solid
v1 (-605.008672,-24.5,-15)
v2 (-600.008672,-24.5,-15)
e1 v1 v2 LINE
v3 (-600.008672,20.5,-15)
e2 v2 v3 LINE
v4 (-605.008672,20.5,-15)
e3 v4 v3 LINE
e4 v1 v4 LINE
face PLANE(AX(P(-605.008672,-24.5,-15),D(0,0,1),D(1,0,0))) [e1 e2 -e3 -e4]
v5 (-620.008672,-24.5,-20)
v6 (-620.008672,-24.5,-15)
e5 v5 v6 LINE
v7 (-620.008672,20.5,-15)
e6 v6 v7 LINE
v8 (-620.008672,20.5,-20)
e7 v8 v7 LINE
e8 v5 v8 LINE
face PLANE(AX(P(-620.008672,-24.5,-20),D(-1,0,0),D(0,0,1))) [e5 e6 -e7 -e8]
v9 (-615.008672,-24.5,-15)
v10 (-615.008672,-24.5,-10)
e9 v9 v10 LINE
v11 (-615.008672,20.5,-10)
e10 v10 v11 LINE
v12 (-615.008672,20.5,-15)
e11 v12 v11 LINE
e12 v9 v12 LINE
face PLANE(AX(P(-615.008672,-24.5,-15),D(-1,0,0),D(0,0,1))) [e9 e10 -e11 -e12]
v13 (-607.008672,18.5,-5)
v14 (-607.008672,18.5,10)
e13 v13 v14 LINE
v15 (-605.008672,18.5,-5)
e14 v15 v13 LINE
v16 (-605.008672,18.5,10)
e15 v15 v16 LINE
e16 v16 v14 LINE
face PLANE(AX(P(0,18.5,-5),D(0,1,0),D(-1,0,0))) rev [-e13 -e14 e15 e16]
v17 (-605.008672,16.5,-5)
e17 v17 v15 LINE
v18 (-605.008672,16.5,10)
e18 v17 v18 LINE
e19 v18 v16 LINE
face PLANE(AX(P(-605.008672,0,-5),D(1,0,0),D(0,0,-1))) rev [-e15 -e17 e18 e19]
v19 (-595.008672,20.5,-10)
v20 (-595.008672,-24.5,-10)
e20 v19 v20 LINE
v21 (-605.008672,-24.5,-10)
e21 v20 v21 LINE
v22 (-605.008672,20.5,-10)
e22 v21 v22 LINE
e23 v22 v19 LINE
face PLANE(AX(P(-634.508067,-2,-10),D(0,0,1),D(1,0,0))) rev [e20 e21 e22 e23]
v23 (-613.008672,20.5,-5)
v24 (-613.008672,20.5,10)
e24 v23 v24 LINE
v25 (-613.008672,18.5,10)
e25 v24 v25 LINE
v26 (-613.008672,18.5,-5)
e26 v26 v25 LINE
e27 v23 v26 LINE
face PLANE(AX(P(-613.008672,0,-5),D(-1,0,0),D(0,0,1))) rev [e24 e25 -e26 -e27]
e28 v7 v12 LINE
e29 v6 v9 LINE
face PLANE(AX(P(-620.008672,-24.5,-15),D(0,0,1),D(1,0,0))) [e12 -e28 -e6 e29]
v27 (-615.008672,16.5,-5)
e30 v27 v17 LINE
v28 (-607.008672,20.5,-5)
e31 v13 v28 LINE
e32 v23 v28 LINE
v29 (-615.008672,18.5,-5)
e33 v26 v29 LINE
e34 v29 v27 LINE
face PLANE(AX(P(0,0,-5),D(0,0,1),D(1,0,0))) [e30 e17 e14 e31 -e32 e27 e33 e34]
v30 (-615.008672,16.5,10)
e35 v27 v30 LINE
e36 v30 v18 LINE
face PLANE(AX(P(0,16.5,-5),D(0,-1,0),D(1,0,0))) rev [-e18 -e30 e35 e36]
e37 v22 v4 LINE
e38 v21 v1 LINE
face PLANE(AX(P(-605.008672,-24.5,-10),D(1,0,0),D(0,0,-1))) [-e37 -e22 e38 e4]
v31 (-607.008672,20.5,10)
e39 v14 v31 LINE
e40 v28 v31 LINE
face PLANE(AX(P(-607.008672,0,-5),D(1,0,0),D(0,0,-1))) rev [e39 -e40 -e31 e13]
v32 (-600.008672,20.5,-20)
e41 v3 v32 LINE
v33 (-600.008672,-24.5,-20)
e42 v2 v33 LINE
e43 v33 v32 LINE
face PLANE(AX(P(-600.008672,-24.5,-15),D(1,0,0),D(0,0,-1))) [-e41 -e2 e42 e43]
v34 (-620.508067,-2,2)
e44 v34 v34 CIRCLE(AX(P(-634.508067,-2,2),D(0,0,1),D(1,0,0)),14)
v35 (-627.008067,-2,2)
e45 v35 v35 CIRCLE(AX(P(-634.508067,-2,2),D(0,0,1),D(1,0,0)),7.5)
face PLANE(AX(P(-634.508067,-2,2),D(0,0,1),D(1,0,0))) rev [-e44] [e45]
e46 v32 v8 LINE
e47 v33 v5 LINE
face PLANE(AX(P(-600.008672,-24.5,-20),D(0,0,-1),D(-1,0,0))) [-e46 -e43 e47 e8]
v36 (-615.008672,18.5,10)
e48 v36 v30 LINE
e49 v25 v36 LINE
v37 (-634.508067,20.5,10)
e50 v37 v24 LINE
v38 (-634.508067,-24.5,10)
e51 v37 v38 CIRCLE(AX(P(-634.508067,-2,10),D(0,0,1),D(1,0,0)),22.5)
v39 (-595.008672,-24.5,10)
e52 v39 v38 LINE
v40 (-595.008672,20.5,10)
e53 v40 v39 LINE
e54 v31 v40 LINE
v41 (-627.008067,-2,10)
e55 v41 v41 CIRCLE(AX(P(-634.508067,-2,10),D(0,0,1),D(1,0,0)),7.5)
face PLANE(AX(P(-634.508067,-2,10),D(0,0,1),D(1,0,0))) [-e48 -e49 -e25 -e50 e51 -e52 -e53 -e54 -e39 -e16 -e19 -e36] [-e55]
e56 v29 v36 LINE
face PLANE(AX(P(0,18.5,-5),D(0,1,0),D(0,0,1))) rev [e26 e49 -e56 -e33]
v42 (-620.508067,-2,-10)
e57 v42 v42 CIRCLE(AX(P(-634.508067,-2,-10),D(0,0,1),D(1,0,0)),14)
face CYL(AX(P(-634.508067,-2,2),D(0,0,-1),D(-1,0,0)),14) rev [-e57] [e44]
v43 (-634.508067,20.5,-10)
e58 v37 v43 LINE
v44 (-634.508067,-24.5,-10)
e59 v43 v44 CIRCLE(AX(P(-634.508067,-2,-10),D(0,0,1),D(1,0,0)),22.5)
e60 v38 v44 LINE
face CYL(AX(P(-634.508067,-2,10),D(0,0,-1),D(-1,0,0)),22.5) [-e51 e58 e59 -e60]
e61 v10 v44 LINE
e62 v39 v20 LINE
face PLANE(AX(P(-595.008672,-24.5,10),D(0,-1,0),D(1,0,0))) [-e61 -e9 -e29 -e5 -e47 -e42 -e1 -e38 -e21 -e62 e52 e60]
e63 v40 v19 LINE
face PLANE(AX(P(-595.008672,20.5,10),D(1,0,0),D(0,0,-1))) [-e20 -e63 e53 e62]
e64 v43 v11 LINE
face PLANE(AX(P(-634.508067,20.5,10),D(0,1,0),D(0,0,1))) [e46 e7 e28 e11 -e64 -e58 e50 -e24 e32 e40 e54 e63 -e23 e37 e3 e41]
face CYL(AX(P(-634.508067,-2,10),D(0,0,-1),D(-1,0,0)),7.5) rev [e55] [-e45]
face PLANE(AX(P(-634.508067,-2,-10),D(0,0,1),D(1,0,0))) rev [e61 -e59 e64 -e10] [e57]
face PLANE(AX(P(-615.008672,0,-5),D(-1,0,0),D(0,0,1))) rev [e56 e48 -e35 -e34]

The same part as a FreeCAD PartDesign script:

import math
import FreeCAD as App
import Part
import Sketcher
from FreeCAD import Vector
Q = App.Units.Quantity


def add_polygon(sketch, points):
    """Adds a closed chain of lines whose ends are joined by coincident constraints."""
    first, n = sketch.GeometryCount, len(points)
    for a, b in zip(points, points[1:] + points[:1]):
        sketch.addGeometry(Part.LineSegment(App.Vector(*a, 0), App.Vector(*b, 0)), False)
    for i in range(n):
        sketch.addConstraint(Sketcher.Constraint("Coincident", first + i, 2, first + (i + 1) % n, 1))

doc = App.newDocument("Part")
body = doc.addObject("PartDesign::Body", "Body")

sketch1 = body.newObject("Sketcher::SketchObject", "Sketch")
sketch1.AttachmentSupport = (doc.getObject("XY_Plane"), [""])
sketch1.MapMode = "FlatFace"
sketch1.addGeometry([
    Part.LineSegment(Vector(-595, 20, 0), Vector(-635, 20, 0)),
    Part.ArcOfCircle(Part.Circle(Vector(-635, -2, 0), Vector(0, 0, 1), 22), math.radians(90), math.radians(270)),
    Part.LineSegment(Vector(-635, -24, 0), Vector(-595, -24, 0)),
    Part.LineSegment(Vector(-595, -24, 0), Vector(-595, 20, 0)),
    Part.Circle(Vector(-635, -2, 0), Vector(0, 0, 1), 8),
], False)
sketch1.addConstraint([
    Sketcher.Constraint("Tangent", 0, 2, 1, 1),
    Sketcher.Constraint("Tangent", 1, 2, 2, 1),
    Sketcher.Constraint("Coincident", 2, 2, 3, 1),
    Sketcher.Constraint("Coincident", 3, 2, 0, 1),
    Sketcher.Constraint("Horizontal", 0),
    Sketcher.Constraint("Horizontal", 2),
    Sketcher.Constraint("Vertical", 3),
    Sketcher.Constraint("Coincident", 4, 3, 1, 3),
    Sketcher.Constraint("Diameter", 4, Q("15 mm")),
    Sketcher.Constraint("Radius", 1, Q("22.5 mm")),
    Sketcher.Constraint("DistanceY", 1, 3, -1, 1, Q("2 mm")),
    Sketcher.Constraint("DistanceX", 0, 2, 0, 1, Q("39.499395 mm")),
    Sketcher.Constraint("DistanceX", 2, 2, -1, 1, Q("595.008672 mm")),
])
pad1 = body.newObject("PartDesign::Pad", "Pad")
pad1.Profile = sketch1
pad1.Length = 20
pad1.Midplane = True

sketch2 = body.newObject("Sketcher::SketchObject", "Sketch001")
sketch2.AttachmentSupport = (doc.getObject("XY_Plane"), [""])
sketch2.MapMode = "FlatFace"
sketch2.addGeometry(Part.Circle(Vector(-635, -2, 0), Vector(0, 0, 1), 14), False)
sketch2.addConstraint([
    Sketcher.Constraint("Diameter", 0, Q("28 mm")),
    Sketcher.Constraint("DistanceY", 0, 3, -1, 1, Q("2 mm")),
    Sketcher.Constraint("DistanceX", 0, 3, -1, 1, Q("634.508067 mm")),
])
pocket1 = body.newObject("PartDesign::Pocket", "Pocket")
pocket1.Profile = sketch2
pocket1.Type = "TwoLengths"
pocket1.Length = 2
pocket1.Length2 = 10
pocket1.Reversed = True

sketch3 = body.newObject("Sketcher::SketchObject", "Sketch002")
sketch3.AttachmentSupport = (doc.getObject("XZ_Plane"), [""])
sketch3.MapMode = "FlatFace"
sketch3.AttachmentOffset = App.Placement(Vector(0, 0, -20.5), App.Rotation())
add_polygon(sketch3, [(-605, -10), (-605, -15), (-600, -15), (-600, -20), (-620, -20), (-620, -15), (-615, -15), (-615, -10)])
sketch3.addConstraint([
    Sketcher.Constraint("Vertical", 0),
    Sketcher.Constraint("Horizontal", 1),
    Sketcher.Constraint("Vertical", 2),
    Sketcher.Constraint("Horizontal", 3),
    Sketcher.Constraint("Vertical", 4),
    Sketcher.Constraint("Horizontal", 5),
    Sketcher.Constraint("Vertical", 6),
    Sketcher.Constraint("Horizontal", 7),
    Sketcher.Constraint("Horizontal", 1, 2, 4, 2),
    Sketcher.Constraint("Equal", 1, 5),
    Sketcher.Constraint("Equal", 5, 0),
    Sketcher.Constraint("Equal", 0, 2),
    Sketcher.Constraint("DistanceX", 1, 1, 1, 2, Q("5 mm")),
    Sketcher.Constraint("DistanceX", 3, 2, 3, 1, Q("20 mm")),
    Sketcher.Constraint("DistanceY", 0, 2, -1, 1, Q("15 mm")),
    Sketcher.Constraint("DistanceX", 0, 2, -1, 1, Q("605.008672 mm")),
])
pad2 = body.newObject("PartDesign::Pad", "Pad001")
pad2.Profile = sketch3
pad2.Length = 45

sketch4 = body.newObject("Sketcher::SketchObject", "Sketch003")
sketch4.AttachmentSupport = (doc.getObject("XY_Plane"), [""])
sketch4.MapMode = "FlatFace"
add_polygon(sketch4, [(-607, 20.5), (-613, 20.5), (-613, 18.5), (-615, 18.5), (-615, 16.5), (-605, 16.5), (-605, 18.5), (-607, 18.5)])
sketch4.addConstraint([
    Sketcher.Constraint("Horizontal", 0),
    Sketcher.Constraint("Vertical", 1),
    Sketcher.Constraint("Horizontal", 2),
    Sketcher.Constraint("Vertical", 3),
    Sketcher.Constraint("Horizontal", 4),
    Sketcher.Constraint("Vertical", 5),
    Sketcher.Constraint("Horizontal", 6),
    Sketcher.Constraint("Vertical", 7),
    Sketcher.Constraint("Horizontal", 2, 2, 5, 2),
    Sketcher.Constraint("Equal", 2, 6),
    Sketcher.Constraint("Equal", 6, 1),
    Sketcher.Constraint("Equal", 1, 3),
    Sketcher.Constraint("DistanceX", 0, 2, 0, 1, Q("6 mm")),
    Sketcher.Constraint("DistanceX", 2, 2, 2, 1, Q("2 mm")),
    Sketcher.Constraint("DistanceY", -1, 1, 0, 2, Q("20.5 mm")),
    Sketcher.Constraint("DistanceX", 0, 2, -1, 1, Q("613.008672 mm")),
])
pocket2 = body.newObject("PartDesign::Pocket", "Pocket001")
pocket2.Profile = sketch4
pocket2.Type = "TwoLengths"
pocket2.Length = 11
pocket2.Length2 = 5
pocket2.Reversed = True

doc.recompute()
